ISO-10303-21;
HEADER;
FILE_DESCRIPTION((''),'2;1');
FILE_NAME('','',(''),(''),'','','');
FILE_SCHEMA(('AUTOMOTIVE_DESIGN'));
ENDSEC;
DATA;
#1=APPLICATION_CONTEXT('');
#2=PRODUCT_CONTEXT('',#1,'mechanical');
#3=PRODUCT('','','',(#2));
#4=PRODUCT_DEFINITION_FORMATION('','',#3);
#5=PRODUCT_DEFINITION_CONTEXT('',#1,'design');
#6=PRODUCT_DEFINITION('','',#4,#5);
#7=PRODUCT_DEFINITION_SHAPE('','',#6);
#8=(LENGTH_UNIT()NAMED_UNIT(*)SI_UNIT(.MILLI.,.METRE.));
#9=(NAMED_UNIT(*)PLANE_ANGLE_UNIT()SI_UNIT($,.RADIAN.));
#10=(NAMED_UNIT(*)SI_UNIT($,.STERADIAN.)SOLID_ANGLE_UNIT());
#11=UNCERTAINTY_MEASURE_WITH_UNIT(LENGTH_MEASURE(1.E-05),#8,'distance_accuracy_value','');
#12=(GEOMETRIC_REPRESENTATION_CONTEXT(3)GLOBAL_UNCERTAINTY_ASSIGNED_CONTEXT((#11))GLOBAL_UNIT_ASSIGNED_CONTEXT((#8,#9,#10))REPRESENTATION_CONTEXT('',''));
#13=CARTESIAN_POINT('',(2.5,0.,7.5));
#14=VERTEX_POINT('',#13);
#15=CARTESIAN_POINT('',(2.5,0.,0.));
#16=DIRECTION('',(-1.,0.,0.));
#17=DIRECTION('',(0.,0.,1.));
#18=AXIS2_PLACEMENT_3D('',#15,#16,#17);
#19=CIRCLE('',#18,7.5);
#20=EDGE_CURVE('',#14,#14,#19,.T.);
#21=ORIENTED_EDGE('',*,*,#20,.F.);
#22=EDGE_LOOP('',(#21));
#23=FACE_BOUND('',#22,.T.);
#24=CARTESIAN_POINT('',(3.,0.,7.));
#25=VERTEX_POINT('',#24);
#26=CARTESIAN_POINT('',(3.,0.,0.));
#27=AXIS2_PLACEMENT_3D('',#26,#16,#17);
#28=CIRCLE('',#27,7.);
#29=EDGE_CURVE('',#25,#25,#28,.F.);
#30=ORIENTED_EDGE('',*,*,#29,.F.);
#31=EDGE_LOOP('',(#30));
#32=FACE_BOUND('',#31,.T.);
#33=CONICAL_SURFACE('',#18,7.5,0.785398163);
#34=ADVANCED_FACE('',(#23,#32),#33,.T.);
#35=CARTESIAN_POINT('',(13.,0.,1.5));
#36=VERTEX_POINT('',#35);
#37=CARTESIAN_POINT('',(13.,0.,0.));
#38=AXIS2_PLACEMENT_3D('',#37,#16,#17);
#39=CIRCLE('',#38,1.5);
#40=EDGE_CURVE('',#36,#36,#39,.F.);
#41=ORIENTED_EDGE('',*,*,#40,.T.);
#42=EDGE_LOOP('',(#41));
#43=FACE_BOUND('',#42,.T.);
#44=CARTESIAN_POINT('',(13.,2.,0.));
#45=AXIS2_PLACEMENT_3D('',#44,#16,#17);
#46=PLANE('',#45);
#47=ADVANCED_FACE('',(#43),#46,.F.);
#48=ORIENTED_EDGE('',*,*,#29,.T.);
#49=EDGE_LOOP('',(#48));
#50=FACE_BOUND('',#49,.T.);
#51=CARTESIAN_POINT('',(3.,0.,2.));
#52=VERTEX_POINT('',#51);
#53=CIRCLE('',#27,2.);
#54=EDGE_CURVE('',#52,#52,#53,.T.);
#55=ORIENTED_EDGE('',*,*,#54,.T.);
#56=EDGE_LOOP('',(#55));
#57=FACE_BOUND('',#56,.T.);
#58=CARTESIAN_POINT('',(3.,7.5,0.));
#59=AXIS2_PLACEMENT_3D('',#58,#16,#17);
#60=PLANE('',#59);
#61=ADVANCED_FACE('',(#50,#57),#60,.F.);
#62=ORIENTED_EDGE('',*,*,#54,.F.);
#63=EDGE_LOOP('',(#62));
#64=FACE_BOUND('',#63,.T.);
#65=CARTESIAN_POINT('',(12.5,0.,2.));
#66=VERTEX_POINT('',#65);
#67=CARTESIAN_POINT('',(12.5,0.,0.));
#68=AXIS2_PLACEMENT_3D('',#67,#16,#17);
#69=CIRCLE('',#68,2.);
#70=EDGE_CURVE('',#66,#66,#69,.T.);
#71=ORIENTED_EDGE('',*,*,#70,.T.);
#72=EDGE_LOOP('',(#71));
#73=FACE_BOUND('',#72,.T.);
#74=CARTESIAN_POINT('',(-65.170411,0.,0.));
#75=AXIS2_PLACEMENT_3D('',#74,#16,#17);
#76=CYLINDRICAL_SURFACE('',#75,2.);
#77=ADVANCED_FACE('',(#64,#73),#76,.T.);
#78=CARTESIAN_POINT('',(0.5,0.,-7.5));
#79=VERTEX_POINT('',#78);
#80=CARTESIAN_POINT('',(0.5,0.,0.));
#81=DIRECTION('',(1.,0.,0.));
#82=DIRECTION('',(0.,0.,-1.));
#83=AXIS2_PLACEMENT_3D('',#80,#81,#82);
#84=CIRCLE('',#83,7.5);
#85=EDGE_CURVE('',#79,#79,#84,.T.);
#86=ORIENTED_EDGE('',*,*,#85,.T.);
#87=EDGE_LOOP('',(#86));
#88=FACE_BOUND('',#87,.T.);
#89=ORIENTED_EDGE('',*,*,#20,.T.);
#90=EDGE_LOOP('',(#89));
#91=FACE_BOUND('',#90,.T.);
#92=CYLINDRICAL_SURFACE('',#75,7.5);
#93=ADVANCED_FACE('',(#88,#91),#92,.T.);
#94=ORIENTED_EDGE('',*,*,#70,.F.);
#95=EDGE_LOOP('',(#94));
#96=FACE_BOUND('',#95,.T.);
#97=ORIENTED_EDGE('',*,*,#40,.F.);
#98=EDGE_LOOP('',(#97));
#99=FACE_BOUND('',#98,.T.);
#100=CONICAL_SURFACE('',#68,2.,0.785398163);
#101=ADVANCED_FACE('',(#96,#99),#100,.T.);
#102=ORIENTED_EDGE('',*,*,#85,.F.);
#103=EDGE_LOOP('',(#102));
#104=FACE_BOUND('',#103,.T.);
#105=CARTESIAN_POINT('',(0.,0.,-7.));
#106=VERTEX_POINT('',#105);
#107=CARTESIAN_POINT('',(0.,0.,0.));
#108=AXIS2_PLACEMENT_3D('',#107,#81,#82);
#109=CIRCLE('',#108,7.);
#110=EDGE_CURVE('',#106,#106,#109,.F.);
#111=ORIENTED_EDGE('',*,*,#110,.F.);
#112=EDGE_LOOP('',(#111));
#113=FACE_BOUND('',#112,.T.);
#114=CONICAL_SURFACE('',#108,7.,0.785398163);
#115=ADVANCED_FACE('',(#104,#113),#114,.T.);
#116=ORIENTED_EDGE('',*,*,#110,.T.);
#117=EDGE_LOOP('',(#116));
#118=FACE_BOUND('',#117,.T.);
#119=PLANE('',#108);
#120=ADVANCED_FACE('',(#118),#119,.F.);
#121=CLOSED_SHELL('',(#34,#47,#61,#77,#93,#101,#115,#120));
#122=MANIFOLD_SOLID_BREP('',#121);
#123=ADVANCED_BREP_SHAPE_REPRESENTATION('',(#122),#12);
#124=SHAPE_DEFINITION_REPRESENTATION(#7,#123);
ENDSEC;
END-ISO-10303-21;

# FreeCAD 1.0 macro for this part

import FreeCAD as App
import Part
import Sketcher
from FreeCAD import Vector
Q = App.Units.Quantity


def edges_at(feature, points):
    """Names of the edges that pass closest to the given points."""
    edges = feature.Shape.Edges
    near = lambda p: min(range(len(edges)), key=lambda i: edges[i].distToShape(Part.Vertex(*p))[0])
    return sorted({f"Edge{near(p) + 1}" for p in points})


def add_polygon(sketch, points):
    """Adds a closed chain of lines whose ends are joined by coincident constraints."""
    first, n = sketch.GeometryCount, len(points)
    for a, b in zip(points, points[1:] + points[:1]):
        sketch.addGeometry(Part.LineSegment(App.Vector(*a, 0), App.Vector(*b, 0)), False)
    for i in range(n):
        sketch.addConstraint(Sketcher.Constraint("Coincident", first + i, 2, first + (i + 1) % n, 1))

doc = App.newDocument("Part")
body = doc.addObject("PartDesign::Body", "Body")

# Sketch on XY plane
sketch1 = doc.addObject("Sketcher::SketchObject", "Sketch")
body.addObject(sketch1)
sketch1.AttachmentSupport = (doc.XY_Plane, [""])
sketch1.MapMode = "FlatFace"
add_polygon(sketch1, [(0, 7.5), (0, 0), (13, 0), (13, 2), (3, 2), (3, 7.5)])  # lines 0-5
sketch1.addConstraint(Sketcher.Constraint("Vertical", 0))
sketch1.addConstraint(Sketcher.Constraint("Horizontal", 1))
sketch1.addConstraint(Sketcher.Constraint("Vertical", 2))
sketch1.addConstraint(Sketcher.Constraint("Horizontal", 3))
sketch1.addConstraint(Sketcher.Constraint("Vertical", 4))
sketch1.addConstraint(Sketcher.Constraint("Horizontal", 5))
sketch1.addConstraint(Sketcher.Constraint("Coincident", 0, 2, -1, 1))
sketch1.addConstraint(Sketcher.Constraint("DistanceX", 1, 1, 1, 2, Q("13 mm")))
sketch1.addConstraint(Sketcher.Constraint("DistanceX", 3, 2, 3, 1, Q("10 mm")))
sketch1.addConstraint(Sketcher.Constraint("DistanceY", 2, 1, 2, 2, Q("2 mm")))
sketch1.addConstraint(Sketcher.Constraint("DistanceY", 0, 2, 0, 1, Q("7.5 mm")))
revolution = doc.addObject("PartDesign::Revolution", "Revolution")
body.addObject(revolution)
revolution.Profile = sketch1
revolution.ReferenceAxis = (sketch1, ["H_Axis"])
revolution.Angle = 360
doc.recompute()

chamfer = doc.addObject("PartDesign::Chamfer", "Chamfer")
body.addObject(chamfer)
chamfer.Base = (revolution, edges_at(revolution, [(13, 0, -2), (3, 0, -7.5), (0, 0, -7.5)]))
chamfer.Size = 0.5

doc.recompute()
